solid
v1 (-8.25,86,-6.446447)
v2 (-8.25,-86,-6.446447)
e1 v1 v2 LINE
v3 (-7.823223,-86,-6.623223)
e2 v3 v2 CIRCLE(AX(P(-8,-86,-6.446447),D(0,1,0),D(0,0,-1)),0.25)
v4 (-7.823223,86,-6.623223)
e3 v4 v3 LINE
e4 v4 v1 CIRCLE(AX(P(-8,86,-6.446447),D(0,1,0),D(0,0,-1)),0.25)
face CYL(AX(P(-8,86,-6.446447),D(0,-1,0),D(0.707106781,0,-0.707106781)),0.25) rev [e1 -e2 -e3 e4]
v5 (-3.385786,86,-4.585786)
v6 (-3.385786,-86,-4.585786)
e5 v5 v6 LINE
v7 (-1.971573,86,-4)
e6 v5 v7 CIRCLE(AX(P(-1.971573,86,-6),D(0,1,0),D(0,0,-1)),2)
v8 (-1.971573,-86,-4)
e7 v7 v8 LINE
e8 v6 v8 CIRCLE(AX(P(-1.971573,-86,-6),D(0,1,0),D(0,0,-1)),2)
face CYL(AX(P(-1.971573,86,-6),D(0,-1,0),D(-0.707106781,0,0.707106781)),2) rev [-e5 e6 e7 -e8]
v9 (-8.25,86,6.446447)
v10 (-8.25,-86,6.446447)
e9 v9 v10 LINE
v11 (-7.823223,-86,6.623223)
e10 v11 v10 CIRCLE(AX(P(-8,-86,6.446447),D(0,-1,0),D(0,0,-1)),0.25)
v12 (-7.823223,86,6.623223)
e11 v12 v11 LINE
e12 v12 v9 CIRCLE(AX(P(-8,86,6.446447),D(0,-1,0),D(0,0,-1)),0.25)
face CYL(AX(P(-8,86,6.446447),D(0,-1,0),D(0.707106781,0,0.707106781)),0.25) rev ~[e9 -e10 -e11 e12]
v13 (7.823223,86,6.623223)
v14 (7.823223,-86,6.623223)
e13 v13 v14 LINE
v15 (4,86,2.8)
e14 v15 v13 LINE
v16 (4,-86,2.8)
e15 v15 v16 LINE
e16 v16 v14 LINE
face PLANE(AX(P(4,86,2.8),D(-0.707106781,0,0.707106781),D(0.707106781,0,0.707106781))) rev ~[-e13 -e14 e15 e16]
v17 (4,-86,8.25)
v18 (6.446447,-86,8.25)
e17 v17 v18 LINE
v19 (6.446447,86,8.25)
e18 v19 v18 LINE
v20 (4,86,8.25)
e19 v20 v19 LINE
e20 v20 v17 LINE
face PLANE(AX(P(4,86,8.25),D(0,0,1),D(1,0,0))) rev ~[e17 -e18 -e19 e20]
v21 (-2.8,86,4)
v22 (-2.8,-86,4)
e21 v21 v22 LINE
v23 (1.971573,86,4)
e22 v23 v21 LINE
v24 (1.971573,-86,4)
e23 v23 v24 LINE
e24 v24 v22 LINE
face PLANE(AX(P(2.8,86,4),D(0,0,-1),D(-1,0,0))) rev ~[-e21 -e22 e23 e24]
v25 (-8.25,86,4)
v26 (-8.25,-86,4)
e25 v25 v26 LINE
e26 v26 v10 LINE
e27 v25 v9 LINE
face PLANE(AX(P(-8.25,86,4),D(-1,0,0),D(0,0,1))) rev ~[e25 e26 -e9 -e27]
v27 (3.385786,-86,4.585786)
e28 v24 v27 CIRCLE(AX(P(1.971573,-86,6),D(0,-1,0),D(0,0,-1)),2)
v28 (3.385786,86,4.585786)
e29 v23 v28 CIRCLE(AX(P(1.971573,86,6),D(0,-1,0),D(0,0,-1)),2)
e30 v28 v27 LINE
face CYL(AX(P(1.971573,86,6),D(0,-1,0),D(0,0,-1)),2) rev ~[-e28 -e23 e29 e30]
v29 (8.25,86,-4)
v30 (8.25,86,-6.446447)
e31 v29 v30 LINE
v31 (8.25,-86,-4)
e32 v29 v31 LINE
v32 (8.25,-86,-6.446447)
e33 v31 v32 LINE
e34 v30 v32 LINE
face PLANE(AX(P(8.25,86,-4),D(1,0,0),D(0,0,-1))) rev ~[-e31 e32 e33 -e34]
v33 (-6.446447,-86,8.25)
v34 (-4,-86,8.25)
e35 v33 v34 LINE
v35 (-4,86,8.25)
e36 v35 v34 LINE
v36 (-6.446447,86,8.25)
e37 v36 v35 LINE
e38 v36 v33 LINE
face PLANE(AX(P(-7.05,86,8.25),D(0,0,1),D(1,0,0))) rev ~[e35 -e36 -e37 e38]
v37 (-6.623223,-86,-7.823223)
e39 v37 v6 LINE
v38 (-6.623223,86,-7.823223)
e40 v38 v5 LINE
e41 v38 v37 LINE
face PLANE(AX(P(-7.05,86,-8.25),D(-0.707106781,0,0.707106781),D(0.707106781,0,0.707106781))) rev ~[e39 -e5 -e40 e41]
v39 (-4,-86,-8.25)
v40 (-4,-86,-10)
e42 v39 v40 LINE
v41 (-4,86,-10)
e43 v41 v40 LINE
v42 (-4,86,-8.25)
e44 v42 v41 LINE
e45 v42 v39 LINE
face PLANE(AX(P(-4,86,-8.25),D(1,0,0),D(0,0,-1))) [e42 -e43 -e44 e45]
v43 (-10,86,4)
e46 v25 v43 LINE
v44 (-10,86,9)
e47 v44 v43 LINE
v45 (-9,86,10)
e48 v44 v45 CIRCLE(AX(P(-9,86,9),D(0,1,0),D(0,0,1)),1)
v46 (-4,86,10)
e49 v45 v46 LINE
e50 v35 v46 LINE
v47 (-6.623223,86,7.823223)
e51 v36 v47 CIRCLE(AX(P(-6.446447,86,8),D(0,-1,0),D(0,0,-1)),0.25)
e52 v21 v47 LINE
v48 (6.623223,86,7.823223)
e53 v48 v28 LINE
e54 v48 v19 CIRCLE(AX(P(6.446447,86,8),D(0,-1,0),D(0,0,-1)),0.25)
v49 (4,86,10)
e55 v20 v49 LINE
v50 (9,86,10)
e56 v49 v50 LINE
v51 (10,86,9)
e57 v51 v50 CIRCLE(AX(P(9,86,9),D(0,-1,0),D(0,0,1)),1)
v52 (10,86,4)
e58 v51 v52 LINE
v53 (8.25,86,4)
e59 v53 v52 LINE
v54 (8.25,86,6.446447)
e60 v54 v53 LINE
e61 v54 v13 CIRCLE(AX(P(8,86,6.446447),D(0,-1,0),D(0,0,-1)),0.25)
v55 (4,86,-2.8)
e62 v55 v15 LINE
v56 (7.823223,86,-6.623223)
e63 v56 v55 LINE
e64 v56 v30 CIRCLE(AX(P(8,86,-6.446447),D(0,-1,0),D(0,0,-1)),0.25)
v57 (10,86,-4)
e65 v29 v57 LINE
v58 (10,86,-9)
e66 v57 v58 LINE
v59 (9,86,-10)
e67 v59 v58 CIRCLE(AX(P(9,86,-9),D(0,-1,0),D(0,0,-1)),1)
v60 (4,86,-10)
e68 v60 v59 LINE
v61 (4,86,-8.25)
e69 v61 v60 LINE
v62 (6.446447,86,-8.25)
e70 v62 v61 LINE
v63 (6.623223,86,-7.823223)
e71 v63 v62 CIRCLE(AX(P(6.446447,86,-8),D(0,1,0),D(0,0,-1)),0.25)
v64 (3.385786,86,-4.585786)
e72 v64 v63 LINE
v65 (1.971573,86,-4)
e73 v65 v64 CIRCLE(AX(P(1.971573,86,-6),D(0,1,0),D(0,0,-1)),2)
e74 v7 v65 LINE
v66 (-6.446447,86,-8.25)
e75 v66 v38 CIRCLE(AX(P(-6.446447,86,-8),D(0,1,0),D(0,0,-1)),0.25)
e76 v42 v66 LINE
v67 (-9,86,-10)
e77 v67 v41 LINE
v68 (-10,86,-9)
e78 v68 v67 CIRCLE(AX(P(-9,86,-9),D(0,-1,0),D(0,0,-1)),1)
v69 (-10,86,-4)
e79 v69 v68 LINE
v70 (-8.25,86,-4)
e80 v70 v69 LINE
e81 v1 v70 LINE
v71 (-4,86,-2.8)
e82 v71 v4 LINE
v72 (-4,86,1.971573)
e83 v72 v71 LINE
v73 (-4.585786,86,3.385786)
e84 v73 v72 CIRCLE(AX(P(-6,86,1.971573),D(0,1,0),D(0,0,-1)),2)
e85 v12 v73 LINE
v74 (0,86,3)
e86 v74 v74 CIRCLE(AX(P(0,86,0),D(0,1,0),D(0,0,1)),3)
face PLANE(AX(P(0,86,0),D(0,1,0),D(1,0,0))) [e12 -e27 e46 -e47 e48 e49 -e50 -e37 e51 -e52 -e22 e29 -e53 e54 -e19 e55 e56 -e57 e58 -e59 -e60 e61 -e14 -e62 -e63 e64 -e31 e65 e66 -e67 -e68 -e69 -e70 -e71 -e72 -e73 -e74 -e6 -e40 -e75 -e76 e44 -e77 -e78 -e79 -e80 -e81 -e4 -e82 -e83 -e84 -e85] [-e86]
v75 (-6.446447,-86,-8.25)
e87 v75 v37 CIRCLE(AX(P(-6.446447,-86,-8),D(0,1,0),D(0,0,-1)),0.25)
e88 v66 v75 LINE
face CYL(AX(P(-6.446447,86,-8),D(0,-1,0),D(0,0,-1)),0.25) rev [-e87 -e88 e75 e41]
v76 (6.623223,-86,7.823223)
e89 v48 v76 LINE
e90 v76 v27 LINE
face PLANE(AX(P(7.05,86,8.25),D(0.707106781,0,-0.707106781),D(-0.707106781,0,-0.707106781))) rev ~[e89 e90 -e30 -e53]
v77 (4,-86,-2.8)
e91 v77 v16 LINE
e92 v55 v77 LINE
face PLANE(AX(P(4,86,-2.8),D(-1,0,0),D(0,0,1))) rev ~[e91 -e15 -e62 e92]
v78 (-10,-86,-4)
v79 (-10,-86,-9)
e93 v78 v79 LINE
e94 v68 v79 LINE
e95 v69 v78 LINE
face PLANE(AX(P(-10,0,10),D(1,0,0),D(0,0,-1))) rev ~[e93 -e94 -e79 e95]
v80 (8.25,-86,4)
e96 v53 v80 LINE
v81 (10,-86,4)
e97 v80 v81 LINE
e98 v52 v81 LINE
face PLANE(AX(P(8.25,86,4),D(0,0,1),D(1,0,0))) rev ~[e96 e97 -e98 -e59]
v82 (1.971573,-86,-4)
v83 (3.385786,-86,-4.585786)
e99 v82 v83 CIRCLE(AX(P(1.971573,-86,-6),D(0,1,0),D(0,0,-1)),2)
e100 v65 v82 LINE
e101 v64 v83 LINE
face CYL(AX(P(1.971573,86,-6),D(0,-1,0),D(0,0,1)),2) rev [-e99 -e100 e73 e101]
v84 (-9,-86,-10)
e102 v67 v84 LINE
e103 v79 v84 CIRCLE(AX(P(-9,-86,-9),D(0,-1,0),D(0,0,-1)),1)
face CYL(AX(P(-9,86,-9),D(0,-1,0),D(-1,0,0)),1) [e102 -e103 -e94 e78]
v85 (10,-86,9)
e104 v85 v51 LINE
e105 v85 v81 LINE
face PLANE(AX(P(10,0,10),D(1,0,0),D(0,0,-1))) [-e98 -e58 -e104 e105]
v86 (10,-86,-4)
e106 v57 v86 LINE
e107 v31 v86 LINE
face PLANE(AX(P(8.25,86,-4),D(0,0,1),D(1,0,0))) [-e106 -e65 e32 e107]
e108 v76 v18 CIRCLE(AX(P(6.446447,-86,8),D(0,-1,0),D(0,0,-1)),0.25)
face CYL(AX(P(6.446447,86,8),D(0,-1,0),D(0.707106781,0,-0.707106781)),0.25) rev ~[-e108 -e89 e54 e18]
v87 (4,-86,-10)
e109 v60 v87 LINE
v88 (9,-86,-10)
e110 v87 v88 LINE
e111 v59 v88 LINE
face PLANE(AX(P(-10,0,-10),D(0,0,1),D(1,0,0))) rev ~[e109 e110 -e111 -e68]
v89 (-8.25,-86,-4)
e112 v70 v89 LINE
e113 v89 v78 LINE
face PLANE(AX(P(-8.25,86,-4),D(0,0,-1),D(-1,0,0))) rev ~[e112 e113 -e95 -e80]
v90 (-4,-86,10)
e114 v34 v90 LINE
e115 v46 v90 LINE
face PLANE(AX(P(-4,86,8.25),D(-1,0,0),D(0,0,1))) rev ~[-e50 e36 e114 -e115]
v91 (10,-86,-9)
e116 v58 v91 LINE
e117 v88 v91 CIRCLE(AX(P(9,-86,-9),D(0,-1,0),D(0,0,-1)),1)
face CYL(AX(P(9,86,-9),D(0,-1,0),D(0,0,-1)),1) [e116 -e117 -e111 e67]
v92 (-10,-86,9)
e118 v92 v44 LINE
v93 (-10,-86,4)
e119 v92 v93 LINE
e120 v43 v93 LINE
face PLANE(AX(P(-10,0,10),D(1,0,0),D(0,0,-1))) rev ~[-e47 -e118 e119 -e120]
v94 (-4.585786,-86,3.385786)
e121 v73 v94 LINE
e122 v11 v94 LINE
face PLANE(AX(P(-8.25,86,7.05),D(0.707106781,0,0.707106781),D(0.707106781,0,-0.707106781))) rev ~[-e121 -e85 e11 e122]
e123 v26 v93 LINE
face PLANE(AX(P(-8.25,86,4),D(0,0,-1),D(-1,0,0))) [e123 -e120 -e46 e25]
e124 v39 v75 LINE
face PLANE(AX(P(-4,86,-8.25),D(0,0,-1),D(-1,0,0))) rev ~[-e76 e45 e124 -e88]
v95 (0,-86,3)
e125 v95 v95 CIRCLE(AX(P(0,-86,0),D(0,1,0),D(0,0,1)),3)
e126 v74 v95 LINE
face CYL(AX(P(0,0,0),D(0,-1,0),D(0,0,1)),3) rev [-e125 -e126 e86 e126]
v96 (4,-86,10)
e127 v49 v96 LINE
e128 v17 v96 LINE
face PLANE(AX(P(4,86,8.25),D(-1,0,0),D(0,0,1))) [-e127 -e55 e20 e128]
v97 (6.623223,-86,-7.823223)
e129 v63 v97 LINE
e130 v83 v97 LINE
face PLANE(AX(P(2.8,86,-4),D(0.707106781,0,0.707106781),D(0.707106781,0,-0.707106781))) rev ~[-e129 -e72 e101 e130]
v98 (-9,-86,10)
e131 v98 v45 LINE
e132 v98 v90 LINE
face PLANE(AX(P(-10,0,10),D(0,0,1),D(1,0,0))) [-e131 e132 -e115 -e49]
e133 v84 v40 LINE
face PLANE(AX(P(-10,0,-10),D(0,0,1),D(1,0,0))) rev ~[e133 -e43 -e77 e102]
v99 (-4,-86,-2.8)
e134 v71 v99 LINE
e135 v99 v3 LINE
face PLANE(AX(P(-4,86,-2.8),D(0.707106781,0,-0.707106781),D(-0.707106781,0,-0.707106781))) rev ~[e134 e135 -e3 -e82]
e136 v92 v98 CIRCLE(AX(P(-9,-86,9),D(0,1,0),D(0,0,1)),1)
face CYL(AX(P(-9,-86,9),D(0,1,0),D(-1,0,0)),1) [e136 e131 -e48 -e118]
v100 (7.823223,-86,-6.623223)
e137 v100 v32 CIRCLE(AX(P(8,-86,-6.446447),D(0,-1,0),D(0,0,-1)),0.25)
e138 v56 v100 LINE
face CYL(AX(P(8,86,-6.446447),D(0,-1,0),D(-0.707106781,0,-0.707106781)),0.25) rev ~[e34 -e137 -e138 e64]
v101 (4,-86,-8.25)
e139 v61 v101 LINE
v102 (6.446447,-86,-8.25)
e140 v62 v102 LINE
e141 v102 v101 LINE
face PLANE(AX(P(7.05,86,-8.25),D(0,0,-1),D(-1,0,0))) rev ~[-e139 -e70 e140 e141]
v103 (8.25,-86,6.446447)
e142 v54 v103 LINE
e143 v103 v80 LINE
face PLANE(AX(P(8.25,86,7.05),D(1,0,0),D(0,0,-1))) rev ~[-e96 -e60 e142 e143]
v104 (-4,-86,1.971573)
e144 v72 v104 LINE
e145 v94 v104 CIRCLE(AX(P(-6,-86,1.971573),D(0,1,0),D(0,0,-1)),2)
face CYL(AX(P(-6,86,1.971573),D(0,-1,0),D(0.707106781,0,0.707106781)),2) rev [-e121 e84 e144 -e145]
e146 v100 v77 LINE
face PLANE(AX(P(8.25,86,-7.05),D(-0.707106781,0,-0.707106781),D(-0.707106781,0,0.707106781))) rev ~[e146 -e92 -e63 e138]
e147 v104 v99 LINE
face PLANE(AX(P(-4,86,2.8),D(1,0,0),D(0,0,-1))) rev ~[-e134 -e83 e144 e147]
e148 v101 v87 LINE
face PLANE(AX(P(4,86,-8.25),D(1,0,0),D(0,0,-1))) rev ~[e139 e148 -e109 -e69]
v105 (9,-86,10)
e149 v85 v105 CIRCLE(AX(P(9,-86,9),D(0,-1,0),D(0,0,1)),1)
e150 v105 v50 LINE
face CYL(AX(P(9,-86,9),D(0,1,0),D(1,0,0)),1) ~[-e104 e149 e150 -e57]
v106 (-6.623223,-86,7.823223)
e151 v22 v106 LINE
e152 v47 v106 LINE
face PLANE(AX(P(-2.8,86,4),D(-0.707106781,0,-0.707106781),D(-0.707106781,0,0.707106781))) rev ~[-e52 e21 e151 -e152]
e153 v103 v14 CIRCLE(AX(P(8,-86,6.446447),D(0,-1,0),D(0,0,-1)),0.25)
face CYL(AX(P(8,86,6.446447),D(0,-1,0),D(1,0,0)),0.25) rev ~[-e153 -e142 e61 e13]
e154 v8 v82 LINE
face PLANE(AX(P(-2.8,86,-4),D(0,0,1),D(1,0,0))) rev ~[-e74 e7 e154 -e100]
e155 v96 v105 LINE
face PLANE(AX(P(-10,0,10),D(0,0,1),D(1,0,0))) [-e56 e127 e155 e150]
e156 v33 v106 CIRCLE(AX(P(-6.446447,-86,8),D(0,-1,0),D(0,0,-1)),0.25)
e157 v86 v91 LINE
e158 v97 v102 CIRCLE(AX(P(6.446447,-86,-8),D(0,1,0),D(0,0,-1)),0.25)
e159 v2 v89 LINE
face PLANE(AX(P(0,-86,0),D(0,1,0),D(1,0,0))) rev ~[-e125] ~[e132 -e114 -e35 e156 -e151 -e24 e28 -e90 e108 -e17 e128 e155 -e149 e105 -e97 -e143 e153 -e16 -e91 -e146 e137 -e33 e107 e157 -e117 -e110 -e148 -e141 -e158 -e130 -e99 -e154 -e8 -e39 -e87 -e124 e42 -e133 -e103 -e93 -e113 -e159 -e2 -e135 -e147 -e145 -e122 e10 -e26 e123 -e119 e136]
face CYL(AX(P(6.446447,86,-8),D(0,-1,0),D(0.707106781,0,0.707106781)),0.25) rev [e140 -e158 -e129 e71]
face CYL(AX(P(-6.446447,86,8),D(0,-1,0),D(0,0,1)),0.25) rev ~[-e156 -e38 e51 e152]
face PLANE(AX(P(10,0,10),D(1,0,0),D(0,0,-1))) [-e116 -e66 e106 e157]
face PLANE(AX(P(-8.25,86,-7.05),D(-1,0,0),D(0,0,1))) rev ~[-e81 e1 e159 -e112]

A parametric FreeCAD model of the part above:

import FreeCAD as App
import Part
import Sketcher
from FreeCAD import Vector


def edges_at(feature, points):
    """Names of the edges that pass closest to the given points."""
    edges = feature.Shape.Edges
    near = lambda p: min(range(len(edges)), key=lambda i: edges[i].distToShape(Part.Vertex(*p))[0])
    return sorted({f"Edge{near(p) + 1}" for p in points})

doc = App.newDocument("Part")
body = doc.addObject("PartDesign::Body", "Body")

# Sketch on XZ plane
sketch1 = body.newObject("Sketcher::SketchObject", "Sketch")
sketch1.AttachmentSupport = (doc.getObject("XZ_Plane"), [""])
sketch1.MapMode = "FlatFace"
sketch1.addGeometry(Part.LineSegment(Vector(-10, -10, 0), Vector(-10, 10, 0)), False)
sketch1.addGeometry(Part.LineSegment(Vector(-10, 10, 0), Vector(10, 10, 0)), False)
sketch1.addGeometry(Part.LineSegment(Vector(10, 10, 0), Vector(10, -10, 0)), False)
sketch1.addGeometry(Part.LineSegment(Vector(10, -10, 0), Vector(-10, -10, 0)), False)
sketch1.addGeometry(Part.Circle(Vector(0, 0, 0), Vector(0, 0, 1), 3), False)
sketch1.addConstraint(Sketcher.Constraint("Coincident", 0, 2, 1, 1))
sketch1.addConstraint(Sketcher.Constraint("Coincident", 1, 2, 2, 1))
sketch1.addConstraint(Sketcher.Constraint("Coincident", 2, 2, 3, 1))
sketch1.addConstraint(Sketcher.Constraint("Coincident", 3, 2, 0, 1))
sketch1.addConstraint(Sketcher.Constraint("Vertical", 0))
sketch1.addConstraint(Sketcher.Constraint("Horizontal", 1))
sketch1.addConstraint(Sketcher.Constraint("Vertical", 2))
sketch1.addConstraint(Sketcher.Constraint("Horizontal", 3))
sketch1.addConstraint(Sketcher.Constraint("Coincident", 4, 3, -1, 1))
sketch1.addConstraint(Sketcher.Constraint("Symmetric", 0, 2, 2, 2, -1, 1))
sketch1.addConstraint(Sketcher.Constraint("Equal", 3, 0))
sketch1.addConstraint(Sketcher.Constraint("Diameter", 4, 6.0))
sketch1.addConstraint(Sketcher.Constraint("DistanceX", 1, 1, 1, 2, 20.0))
pad1 = body.newObject("PartDesign::Pad", "Pad")
pad1.Profile = sketch1
pad1.Length = 172
pad1.Midplane = True

# Sketch on XZ plane
sketch2 = body.newObject("Sketcher::SketchObject", "Sketch001")
sketch2.AttachmentSupport = (doc.getObject("XZ_Plane"), [""])
sketch2.MapMode = "FlatFace"
sketch2.AttachmentOffset = App.Placement(Vector(0, 0, -86), App.Rotation())
sketch2.addGeometry(Part.LineSegment(Vector(-7, -8.2, 0), Vector(-2.8, -4, 0)), False)
sketch2.addGeometry(Part.LineSegment(Vector(-2.8, -4, 0), Vector(2.8, -4, 0)), False)
sketch2.addGeometry(Part.LineSegment(Vector(2.8, -4, 0), Vector(7, -8.2, 0)), False)
sketch2.addGeometry(Part.LineSegment(Vector(7, -8.2, 0), Vector(4, -8.2, 0)), False)
sketch2.addGeometry(Part.LineSegment(Vector(4, -8.2, 0), Vector(4, -10, 0)), False)
sketch2.addGeometry(Part.LineSegment(Vector(4, -10, 0), Vector(-4, -10, 0)), False)
sketch2.addGeometry(Part.LineSegment(Vector(-4, -10, 0), Vector(-4, -8.2, 0)), False)
sketch2.addGeometry(Part.LineSegment(Vector(-4, -8.2, 0), Vector(-7, -8.2, 0)), False)
sketch2.addConstraint(Sketcher.Constraint("Coincident", 0, 2, 1, 1))
sketch2.addConstraint(Sketcher.Constraint("Coincident", 1, 2, 2, 1))
sketch2.addConstraint(Sketcher.Constraint("Coincident", 2, 2, 3, 1))
sketch2.addConstraint(Sketcher.Constraint("Coincident", 3, 2, 4, 1))
sketch2.addConstraint(Sketcher.Constraint("Coincident", 4, 2, 5, 1))
sketch2.addConstraint(Sketcher.Constraint("Coincident", 5, 2, 6, 1))
sketch2.addConstraint(Sketcher.Constraint("Coincident", 6, 2, 7, 1))
sketch2.addConstraint(Sketcher.Constraint("Coincident", 7, 2, 0, 1))
sketch2.addConstraint(Sketcher.Constraint("Horizontal", 1))
sketch2.addConstraint(Sketcher.Constraint("Horizontal", 3))
sketch2.addConstraint(Sketcher.Constraint("Vertical", 4))
sketch2.addConstraint(Sketcher.Constraint("Horizontal", 5))
sketch2.addConstraint(Sketcher.Constraint("Vertical", 6))
sketch2.addConstraint(Sketcher.Constraint("Horizontal", 7))
sketch2.addConstraint(Sketcher.Constraint("Symmetric", 3, 2, 6, 2, -2))
sketch2.addConstraint(Sketcher.Constraint("Perpendicular", 0, 2))
sketch2.addConstraint(Sketcher.Constraint("Equal", 3, 7))
sketch2.addConstraint(Sketcher.Constraint("Equal", 0, 2))
sketch2.addConstraint(Sketcher.Constraint("DistanceX", 5, 2, 5, 1, 8.0))
sketch2.addConstraint(Sketcher.Constraint("DistanceX", 1, 1, 1, 2, 5.6))
sketch2.addConstraint(Sketcher.Constraint("DistanceY", 0, 2, -1, 1, 4.0))
sketch2.addConstraint(Sketcher.Constraint("DistanceY", 4, 2, -1, 1, 10.0))
sketch2.addConstraint(Sketcher.Constraint("DistanceX", 3, 2, 3, 1, 3.05))
pocket1 = body.newObject("PartDesign::Pocket", "Pocket")
pocket1.Profile = sketch2
pocket1.Type = "ThroughAll"
pocket1.Reversed = True
doc.recompute()

polarpattern = body.newObject("PartDesign::PolarPattern", "PolarPattern")
polarpattern.Originals = [pocket1]
polarpattern.Axis = (doc.getObject("Y_Axis"), [""])
polarpattern.Angle = 360
polarpattern.Occurrences = 4
body.Tip = polarpattern
doc.recompute()

fillet = body.newObject("PartDesign::Fillet", "Fillet")
fillet.Base = (polarpattern, edges_at(polarpattern, [
    (10, 0, 10),
    (-10, 0, 10),
    (-10, 0, -10),
    (10, 0, -10),
]))
fillet.Radius = 1
doc.recompute()

fillet2 = body.newObject("PartDesign::Fillet", "Fillet001")
fillet2.Base = (fillet, edges_at(fillet, [
    (-4, 0, 2.8),
    (2.8, 0, -4),
    (-2.8, 0, -4),
    (2.8, 0, 4),
]))
fillet2.Radius = 2
doc.recompute()

fillet3 = body.newObject("PartDesign::Fillet", "Fillet002")
fillet3.Base = (fillet2, edges_at(fillet2, [
    (-8.25, 0, -7.05),
    (-8.25, 0, 7.05),
    (7.05, 0, -8.25),
    (-7.05, 0, -8.25),
    (8.25, 0, 7.05),
    (8.25, 0, -7.05),
    (-7.05, 0, 8.25),
    (7.05, 0, 8.25),
]))
fillet3.Radius = 0.25

doc.recompute()
